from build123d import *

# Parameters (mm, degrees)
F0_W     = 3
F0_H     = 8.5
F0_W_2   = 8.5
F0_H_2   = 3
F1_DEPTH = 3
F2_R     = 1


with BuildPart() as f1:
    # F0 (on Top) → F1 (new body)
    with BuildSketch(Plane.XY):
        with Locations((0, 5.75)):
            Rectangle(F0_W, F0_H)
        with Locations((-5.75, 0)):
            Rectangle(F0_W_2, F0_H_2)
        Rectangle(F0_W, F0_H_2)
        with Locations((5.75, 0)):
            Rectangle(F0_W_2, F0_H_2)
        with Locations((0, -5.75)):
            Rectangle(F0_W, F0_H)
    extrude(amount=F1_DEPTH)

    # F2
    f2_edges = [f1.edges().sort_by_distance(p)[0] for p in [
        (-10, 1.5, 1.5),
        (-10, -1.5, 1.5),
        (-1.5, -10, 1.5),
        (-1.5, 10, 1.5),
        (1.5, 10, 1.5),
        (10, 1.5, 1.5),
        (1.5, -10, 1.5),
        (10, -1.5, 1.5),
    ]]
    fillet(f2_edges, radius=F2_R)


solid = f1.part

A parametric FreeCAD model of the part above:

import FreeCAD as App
import Part
import Sketcher

V = App.Vector
Q = App.Units.Quantity


def edges_at(feature, points):
    """Names of the edges that pass closest to the given points."""
    edges = feature.Shape.Edges
    near = lambda p: min(range(len(edges)), key=lambda i: edges[i].distToShape(Part.Vertex(*p))[0])
    return sorted({f"Edge{near(p) + 1}" for p in points})

doc = App.newDocument("Part")
body = doc.addObject("PartDesign::Body", "Body")

# Sketch on XY plane
sketch1 = body.newObject("Sketcher::SketchObject", "Sketch")
sketch1.AttachmentSupport = (doc.getObject("XY_Plane"), [""])
sketch1.MapMode = "FlatFace"
sketch1.addGeometry(Part.LineSegment(V(-1.5, 10, 0), V(-1.5, 1.5, 0)), False)
sketch1.addGeometry(Part.LineSegment(V(-1.5, 1.5, 0), V(-10, 1.5, 0)), False)
sketch1.addGeometry(Part.LineSegment(V(-10, 1.5, 0), V(-10, -1.5, 0)), False)
sketch1.addGeometry(Part.LineSegment(V(-10, -1.5, 0), V(-1.5, -1.5, 0)), False)
sketch1.addGeometry(Part.LineSegment(V(-1.5, -1.5, 0), V(-1.5, -10, 0)), False)
sketch1.addGeometry(Part.LineSegment(V(-1.5, -10, 0), V(1.5, -10, 0)), False)
sketch1.addGeometry(Part.LineSegment(V(1.5, -10, 0), V(1.5, -1.5, 0)), False)
sketch1.addGeometry(Part.LineSegment(V(1.5, -1.5, 0), V(10, -1.5, 0)), False)
sketch1.addGeometry(Part.LineSegment(V(10, -1.5, 0), V(10, 1.5, 0)), False)
sketch1.addGeometry(Part.LineSegment(V(10, 1.5, 0), V(1.5, 1.5, 0)), False)
sketch1.addGeometry(Part.LineSegment(V(1.5, 1.5, 0), V(1.5, 10, 0)), False)
sketch1.addGeometry(Part.LineSegment(V(1.5, 10, 0), V(-1.5, 10, 0)), False)
sketch1.addConstraint(Sketcher.Constraint("Coincident", 0, 2, 1, 1))
sketch1.addConstraint(Sketcher.Constraint("Coincident", 1, 2, 2, 1))
sketch1.addConstraint(Sketcher.Constraint("Coincident", 2, 2, 3, 1))
sketch1.addConstraint(Sketcher.Constraint("Coincident", 3, 2, 4, 1))
sketch1.addConstraint(Sketcher.Constraint("Coincident", 4, 2, 5, 1))
sketch1.addConstraint(Sketcher.Constraint("Coincident", 5, 2, 6, 1))
sketch1.addConstraint(Sketcher.Constraint("Coincident", 6, 2, 7, 1))
sketch1.addConstraint(Sketcher.Constraint("Coincident", 7, 2, 8, 1))
sketch1.addConstraint(Sketcher.Constraint("Coincident", 8, 2, 9, 1))
sketch1.addConstraint(Sketcher.Constraint("Coincident", 9, 2, 10, 1))
sketch1.addConstraint(Sketcher.Constraint("Coincident", 10, 2, 11, 1))
sketch1.addConstraint(Sketcher.Constraint("Coincident", 11, 2, 0, 1))
sketch1.addConstraint(Sketcher.Constraint("Vertical", 0))
sketch1.addConstraint(Sketcher.Constraint("Horizontal", 1))
sketch1.addConstraint(Sketcher.Constraint("Vertical", 2))
sketch1.addConstraint(Sketcher.Constraint("Horizontal", 3))
sketch1.addConstraint(Sketcher.Constraint("Vertical", 4))
sketch1.addConstraint(Sketcher.Constraint("Horizontal", 5))
sketch1.addConstraint(Sketcher.Constraint("Vertical", 6))
sketch1.addConstraint(Sketcher.Constraint("Horizontal", 7))
sketch1.addConstraint(Sketcher.Constraint("Vertical", 8))
sketch1.addConstraint(Sketcher.Constraint("Horizontal", 9))
sketch1.addConstraint(Sketcher.Constraint("Vertical", 10))
sketch1.addConstraint(Sketcher.Constraint("Horizontal", 11))
sketch1.addConstraint(Sketcher.Constraint("Symmetric", 0, 2, 6, 2, -1, 1))
sketch1.addConstraint(Sketcher.Constraint("Symmetric", 2, 2, 8, 2, -1, 1))
sketch1.addConstraint(Sketcher.Constraint("Symmetric", 4, 2, 10, 2, -1, 1))
sketch1.addConstraint(Sketcher.Constraint("Symmetric", 3, 2, 6, 2, -2))
sketch1.addConstraint(Sketcher.Constraint("Equal", 9, 0))
sketch1.addConstraint(Sketcher.Constraint("Equal", 11, 2))
sketch1.addConstraint(Sketcher.Constraint("DistanceX", 5, 1, 5, 2, Q("3 mm")))
sketch1.addConstraint(Sketcher.Constraint("DistanceX", 1, 2, 1, 1, Q("8.5 mm")))
pad1 = body.newObject("PartDesign::Pad", "Pad")
pad1.Profile = sketch1
pad1.Length = 3
doc.recompute()

fillet = body.newObject("PartDesign::Fillet", "Fillet")
fillet.Base = (pad1, edges_at(pad1, [
    (-10, 1.5, 1.5),
    (-10, -1.5, 1.5),
    (-1.5, -10, 1.5),
    (-1.5, 10, 1.5),
    (1.5, 10, 1.5),
    (10, 1.5, 1.5),
    (1.5, -10, 1.5),
    (10, -1.5, 1.5),
]))
fillet.Radius = 1

doc.recompute()
